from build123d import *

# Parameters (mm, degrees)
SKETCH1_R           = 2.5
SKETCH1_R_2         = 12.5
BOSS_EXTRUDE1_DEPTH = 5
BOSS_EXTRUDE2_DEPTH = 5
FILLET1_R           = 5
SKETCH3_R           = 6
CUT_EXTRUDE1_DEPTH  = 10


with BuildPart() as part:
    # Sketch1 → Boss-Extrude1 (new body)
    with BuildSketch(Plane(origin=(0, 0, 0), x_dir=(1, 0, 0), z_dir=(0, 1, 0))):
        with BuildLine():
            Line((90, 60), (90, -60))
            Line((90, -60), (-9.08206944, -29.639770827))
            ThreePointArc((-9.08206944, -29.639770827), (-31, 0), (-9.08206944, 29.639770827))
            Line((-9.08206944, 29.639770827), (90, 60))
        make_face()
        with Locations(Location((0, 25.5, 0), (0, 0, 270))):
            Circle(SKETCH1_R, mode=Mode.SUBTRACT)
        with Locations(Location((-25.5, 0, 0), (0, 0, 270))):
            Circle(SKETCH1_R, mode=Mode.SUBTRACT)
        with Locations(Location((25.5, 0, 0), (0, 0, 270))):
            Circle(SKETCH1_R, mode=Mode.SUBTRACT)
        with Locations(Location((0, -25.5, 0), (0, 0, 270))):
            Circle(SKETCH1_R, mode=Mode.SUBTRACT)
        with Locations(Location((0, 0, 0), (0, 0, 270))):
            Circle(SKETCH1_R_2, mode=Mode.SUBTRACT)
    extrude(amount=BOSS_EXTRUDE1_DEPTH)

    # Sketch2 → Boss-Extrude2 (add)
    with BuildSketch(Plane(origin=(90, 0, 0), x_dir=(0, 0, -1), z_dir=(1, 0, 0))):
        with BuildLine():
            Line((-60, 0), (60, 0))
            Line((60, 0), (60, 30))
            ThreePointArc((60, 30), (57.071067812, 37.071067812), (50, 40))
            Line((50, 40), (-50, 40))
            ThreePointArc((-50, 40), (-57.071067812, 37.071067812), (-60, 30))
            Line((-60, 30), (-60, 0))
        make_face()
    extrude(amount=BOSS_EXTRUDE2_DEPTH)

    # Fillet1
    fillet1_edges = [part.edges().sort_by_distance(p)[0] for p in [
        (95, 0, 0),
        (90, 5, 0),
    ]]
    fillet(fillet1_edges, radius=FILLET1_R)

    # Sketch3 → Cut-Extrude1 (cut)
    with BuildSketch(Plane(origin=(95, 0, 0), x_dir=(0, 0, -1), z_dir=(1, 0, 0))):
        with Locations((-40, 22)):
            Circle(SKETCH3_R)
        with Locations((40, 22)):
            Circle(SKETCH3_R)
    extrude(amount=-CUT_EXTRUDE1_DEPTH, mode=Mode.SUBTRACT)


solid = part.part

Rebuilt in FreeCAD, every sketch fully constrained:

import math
import FreeCAD as App
import Part
import Sketcher
from FreeCAD import Vector


def edges_at(feature, points):
    """Names of the edges that pass closest to the given points."""
    edges = feature.Shape.Edges
    near = lambda p: min(range(len(edges)), key=lambda i: edges[i].distToShape(Part.Vertex(*p))[0])
    return sorted({f"Edge{near(p) + 1}" for p in points})

doc = App.newDocument("Part")
body = doc.addObject("PartDesign::Body", "Body")

# Sketch on XZ plane
sketch1 = body.newObject("Sketcher::SketchObject", "Sketch")
sketch1.AttachmentSupport = (doc.getObject("XZ_Plane"), [""])
sketch1.MapMode = "FlatFace"
sketch1.addGeometry([
    Part.LineSegment(Vector(90, 60, 0), Vector(90, -60, 0)),  # 0
    Part.LineSegment(Vector(90, -60, 0), Vector(-9.1, -29.6, 0)),  # 1
    Part.ArcOfCircle(Part.Circle(Vector(0, 0, 0), Vector(0, 0, 1), 31), math.radians(107), math.radians(253)),  # 2
    Part.LineSegment(Vector(-9.1, 29.6, 0), Vector(90, 60, 0)),  # 3
    Part.Circle(Vector(0, 25.5, 0), Vector(0, 0, 1), 2.5),  # 4
    Part.Circle(Vector(25.5, 0, 0), Vector(0, 0, 1), 2.5),  # 5
    Part.Circle(Vector(0, 0, 0), Vector(0, 0, 1), 12.5),  # 6
    Part.Circle(Vector(-25.5, 0, 0), Vector(0, 0, 1), 2.5),  # 7
    Part.Circle(Vector(0, -25.5, 0), Vector(0, 0, 1), 2.5),  # 8
], False)
sketch1.addConstraint([
    Sketcher.Constraint("Coincident", 0, 2, 1, 1),
    Sketcher.Constraint("Tangent", 1, 2, 2, 2),
    Sketcher.Constraint("Tangent", 2, 1, 3, 1),
    Sketcher.Constraint("Coincident", 3, 2, 0, 1),
    Sketcher.Constraint("Vertical", 0),
    Sketcher.Constraint("Coincident", 2, 3, -1, 1),
    Sketcher.Constraint("Coincident", 6, 3, -1, 1),
    Sketcher.Constraint("Equal", 4, 5),
    Sketcher.Constraint("Equal", 5, 7),
    Sketcher.Constraint("Equal", 7, 8),
    Sketcher.Constraint("Symmetric", 5, 3, 7, 3, -1, 1),
    Sketcher.Constraint("Symmetric", 4, 3, 8, 3, -1, 1),
    Sketcher.Constraint("PointOnObject", 4, 3, -2),
    Sketcher.Constraint("PointOnObject", 5, 3, -1),
    Sketcher.Constraint("Vertical", 1, 2, 2, 1),
    Sketcher.Constraint("Diameter", 4, 5.0),
    Sketcher.Constraint("Diameter", 6, 25.0),
    Sketcher.Constraint("Radius", 2, 31.0),
    Sketcher.Constraint("DistanceY", 0, 2, 0, 1, 120.0),
    Sketcher.Constraint("DistanceX", -1, 1, 0, 2, 90.0),
    Sketcher.Constraint("DistanceX", 7, 3, 5, 3, 51.0),
    Sketcher.Constraint("DistanceY", 8, 3, 4, 3, 51.0),
])
pad1 = body.newObject("PartDesign::Pad", "Pad")
pad1.Profile = sketch1
pad1.Length = 5
pad1.Reversed = True

# Sketch on YZ plane
sketch2 = body.newObject("Sketcher::SketchObject", "Sketch001")
sketch2.AttachmentSupport = (doc.getObject("YZ_Plane"), [""])
sketch2.MapMode = "FlatFace"
sketch2.AttachmentOffset = App.Placement(Vector(0, 0, 90), App.Rotation())
sketch2.addGeometry([
    Part.LineSegment(Vector(0, 60, 0), Vector(0, -60, 0)),  # 0
    Part.LineSegment(Vector(0, -60, 0), Vector(30, -60, 0)),  # 1
    Part.ArcOfCircle(Part.Circle(Vector(30, -50, 0), Vector(0, 0, 1), 10), math.radians(-90), math.radians(0)),  # 2
    Part.LineSegment(Vector(40, -50, 0), Vector(40, 50, 0)),  # 3
    Part.ArcOfCircle(Part.Circle(Vector(30, 50, 0), Vector(0, 0, 1), 10), math.radians(0), math.radians(90)),  # 4
    Part.LineSegment(Vector(30, 60, 0), Vector(0, 60, 0)),  # 5
], False)
sketch2.addConstraint([
    Sketcher.Constraint("Coincident", 0, 2, 1, 1),
    Sketcher.Constraint("Tangent", 1, 2, 2, 1),
    Sketcher.Constraint("Tangent", 2, 2, 3, 1),
    Sketcher.Constraint("Tangent", 3, 2, 4, 1),
    Sketcher.Constraint("Tangent", 4, 2, 5, 1),
    Sketcher.Constraint("Coincident", 5, 2, 0, 1),
    Sketcher.Constraint("Vertical", 0),
    Sketcher.Constraint("Horizontal", 1),
    Sketcher.Constraint("Vertical", 3),
    Sketcher.Constraint("Horizontal", 5),
    Sketcher.Constraint("Equal", 2, 4),
    Sketcher.Constraint("Symmetric", 0, 2, 5, 2, -1, 1),
    Sketcher.Constraint("Radius", 2, 10.0),
    Sketcher.Constraint("DistanceX", 1, 1, 1, 2, 30.0),
    Sketcher.Constraint("DistanceY", 0, 2, 0, 1, 120.0),
])
pad2 = body.newObject("PartDesign::Pad", "Pad001")
pad2.Profile = sketch2
pad2.Length = 5
doc.recompute()

fillet = body.newObject("PartDesign::Fillet", "Fillet")
fillet.Base = (pad2, edges_at(pad2, [(95, 0, 0), (90, 5, 0)]))
fillet.Radius = 5

# Sketch on YZ plane
sketch3 = body.newObject("Sketcher::SketchObject", "Sketch002")
sketch3.AttachmentSupport = (doc.getObject("YZ_Plane"), [""])
sketch3.MapMode = "FlatFace"
sketch3.AttachmentOffset = App.Placement(Vector(0, 0, 95), App.Rotation())
sketch3.addGeometry([
    Part.Circle(Vector(22, 40, 0), Vector(0, 0, 1), 6),
    Part.Circle(Vector(22, -40, 0), Vector(0, 0, 1), 6),
], False)
sketch3.addConstraint([
    Sketcher.Constraint("Equal", 0, 1),
    Sketcher.Constraint("Symmetric", 0, 3, 1, 3, -1),
    Sketcher.Constraint("Diameter", 0, 12.0),
    Sketcher.Constraint("DistanceX", -1, 1, 0, 3, 22.0),
    Sketcher.Constraint("DistanceY", -1, 1, 0, 3, 40.0),
])
pocket1 = body.newObject("PartDesign::Pocket", "Pocket")
pocket1.Profile = sketch3
pocket1.Length = 10

doc.recompute()
